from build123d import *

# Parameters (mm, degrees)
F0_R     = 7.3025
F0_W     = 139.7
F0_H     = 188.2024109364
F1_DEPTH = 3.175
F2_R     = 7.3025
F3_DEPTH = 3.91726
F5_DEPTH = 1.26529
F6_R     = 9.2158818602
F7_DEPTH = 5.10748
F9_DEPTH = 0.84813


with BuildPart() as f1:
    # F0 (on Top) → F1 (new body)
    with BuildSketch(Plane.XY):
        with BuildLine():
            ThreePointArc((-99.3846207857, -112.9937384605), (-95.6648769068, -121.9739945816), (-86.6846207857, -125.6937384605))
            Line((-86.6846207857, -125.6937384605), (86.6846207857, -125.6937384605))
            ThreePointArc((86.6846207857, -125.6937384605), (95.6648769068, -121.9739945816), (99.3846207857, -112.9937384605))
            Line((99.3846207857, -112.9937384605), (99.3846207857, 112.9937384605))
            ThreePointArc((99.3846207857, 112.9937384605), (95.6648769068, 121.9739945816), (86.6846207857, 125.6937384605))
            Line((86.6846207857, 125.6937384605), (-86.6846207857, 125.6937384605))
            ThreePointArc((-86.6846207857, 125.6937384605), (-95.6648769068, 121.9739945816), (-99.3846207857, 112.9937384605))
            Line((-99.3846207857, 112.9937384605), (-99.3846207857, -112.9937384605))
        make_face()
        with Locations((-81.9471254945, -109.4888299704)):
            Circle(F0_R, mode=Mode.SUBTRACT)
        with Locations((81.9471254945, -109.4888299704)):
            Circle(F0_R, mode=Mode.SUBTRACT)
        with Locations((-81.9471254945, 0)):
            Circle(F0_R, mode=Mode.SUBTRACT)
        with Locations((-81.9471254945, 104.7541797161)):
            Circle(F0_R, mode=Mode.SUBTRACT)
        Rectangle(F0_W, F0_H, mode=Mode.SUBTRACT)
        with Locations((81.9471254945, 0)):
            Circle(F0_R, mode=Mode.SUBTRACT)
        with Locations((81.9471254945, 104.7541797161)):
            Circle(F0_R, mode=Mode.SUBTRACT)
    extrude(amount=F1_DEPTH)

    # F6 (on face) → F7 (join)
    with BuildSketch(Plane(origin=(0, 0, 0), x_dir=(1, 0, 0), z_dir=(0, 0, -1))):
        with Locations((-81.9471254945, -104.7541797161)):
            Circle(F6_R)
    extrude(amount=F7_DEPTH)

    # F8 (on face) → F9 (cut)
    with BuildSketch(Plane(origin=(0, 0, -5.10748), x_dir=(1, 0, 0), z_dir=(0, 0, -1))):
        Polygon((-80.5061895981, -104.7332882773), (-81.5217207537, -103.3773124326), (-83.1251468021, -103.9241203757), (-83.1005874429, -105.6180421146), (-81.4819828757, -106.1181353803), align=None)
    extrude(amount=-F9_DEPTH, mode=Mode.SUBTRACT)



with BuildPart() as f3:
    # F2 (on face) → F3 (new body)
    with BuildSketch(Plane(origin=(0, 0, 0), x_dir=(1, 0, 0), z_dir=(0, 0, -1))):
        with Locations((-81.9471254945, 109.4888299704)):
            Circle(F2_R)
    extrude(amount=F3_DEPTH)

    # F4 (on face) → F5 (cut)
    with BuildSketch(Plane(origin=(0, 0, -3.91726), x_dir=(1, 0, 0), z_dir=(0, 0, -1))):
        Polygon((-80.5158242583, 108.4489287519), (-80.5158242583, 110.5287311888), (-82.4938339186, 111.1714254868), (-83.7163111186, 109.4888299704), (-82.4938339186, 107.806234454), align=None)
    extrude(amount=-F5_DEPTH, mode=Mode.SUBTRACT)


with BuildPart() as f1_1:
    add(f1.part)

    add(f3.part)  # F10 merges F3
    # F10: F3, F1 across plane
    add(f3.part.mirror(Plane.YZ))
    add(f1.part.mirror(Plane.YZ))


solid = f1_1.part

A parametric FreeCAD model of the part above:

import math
import FreeCAD as App
import Part
import Sketcher
Q = App.Units.Quantity


def add_polygon(sketch, points):
    """Adds a closed chain of lines whose ends are joined by coincident constraints."""
    first, n = sketch.GeometryCount, len(points)
    for a, b in zip(points, points[1:] + points[:1]):
        sketch.addGeometry(Part.LineSegment(App.Vector(*a, 0), App.Vector(*b, 0)), False)
    for i in range(n):
        sketch.addConstraint(Sketcher.Constraint("Coincident", first + i, 2, first + (i + 1) % n, 1))

doc = App.newDocument("Part")
body = doc.addObject("PartDesign::Body", "Body")

# Sketch on XY plane
sketch1 = body.newObject("Sketcher::SketchObject", "Sketch")
sketch1.AttachmentSupport = (doc.getObject("XY_Plane"), [""])
sketch1.MapMode = "FlatFace"
sketch1.addGeometry(Part.ArcOfCircle(Part.Circle(App.Vector(-86.684621, -112.993738, 0), App.Vector(0, 0, 1), 12.7), math.radians(180), math.radians(270)), False)  # 0
sketch1.addGeometry(Part.LineSegment(App.Vector(-86.684621, -125.693738, 0), App.Vector(86.684621, -125.693738, 0)), False)  # 1
sketch1.addGeometry(Part.ArcOfCircle(Part.Circle(App.Vector(86.684621, -112.993738, 0), App.Vector(0, 0, 1), 12.7), math.radians(-90), math.radians(0)), False)  # 2
sketch1.addGeometry(Part.LineSegment(App.Vector(99.384621, -112.993738, 0), App.Vector(99.384621, 112.993738, 0)), False)  # 3
sketch1.addGeometry(Part.ArcOfCircle(Part.Circle(App.Vector(86.684621, 112.993738, 0), App.Vector(0, 0, 1), 12.7), math.radians(0), math.radians(90)), False)  # 4
sketch1.addGeometry(Part.LineSegment(App.Vector(86.684621, 125.693738, 0), App.Vector(-86.684621, 125.693738, 0)), False)  # 5
sketch1.addGeometry(Part.ArcOfCircle(Part.Circle(App.Vector(-86.684621, 112.993738, 0), App.Vector(0, 0, 1), 12.7), math.radians(90), math.radians(180)), False)  # 6
sketch1.addGeometry(Part.LineSegment(App.Vector(-99.384621, 112.993738, 0), App.Vector(-99.384621, -112.993738, 0)), False)  # 7
sketch1.addGeometry(Part.Circle(App.Vector(-81.947125, -109.48883, 0), App.Vector(0, 0, 1), 7.3025), False)  # 8
sketch1.addGeometry(Part.Circle(App.Vector(81.947125, -109.48883, 0), App.Vector(0, 0, 1), 7.3025), False)  # 9
sketch1.addGeometry(Part.Circle(App.Vector(-81.947125, 0, 0), App.Vector(0, 0, 1), 7.3025), False)  # 10
sketch1.addGeometry(Part.Circle(App.Vector(-81.947125, 104.75418, 0), App.Vector(0, 0, 1), 7.3025), False)  # 11
add_polygon(sketch1, [(69.85, -94.101205), (-69.85, -94.101205), (-69.85, 94.101205), (69.85, 94.101205)])  # lines 12-15
sketch1.addGeometry(Part.Circle(App.Vector(81.947125, 0, 0), App.Vector(0, 0, 1), 7.3025), False)  # 16
sketch1.addGeometry(Part.Circle(App.Vector(81.947125, 104.75418, 0), App.Vector(0, 0, 1), 7.3025), False)  # 17
sketch1.addConstraint(Sketcher.Constraint("Tangent", 0, 2, 1, 1))
sketch1.addConstraint(Sketcher.Constraint("Tangent", 1, 2, 2, 1))
sketch1.addConstraint(Sketcher.Constraint("Tangent", 2, 2, 3, 1))
sketch1.addConstraint(Sketcher.Constraint("Tangent", 3, 2, 4, 1))
sketch1.addConstraint(Sketcher.Constraint("Tangent", 4, 2, 5, 1))
sketch1.addConstraint(Sketcher.Constraint("Tangent", 5, 2, 6, 1))
sketch1.addConstraint(Sketcher.Constraint("Tangent", 6, 2, 7, 1))
sketch1.addConstraint(Sketcher.Constraint("Tangent", 7, 2, 0, 1))
sketch1.addConstraint(Sketcher.Constraint("Horizontal", 1))
sketch1.addConstraint(Sketcher.Constraint("Vertical", 3))
sketch1.addConstraint(Sketcher.Constraint("Horizontal", 5))
sketch1.addConstraint(Sketcher.Constraint("Vertical", 7))
sketch1.addConstraint(Sketcher.Constraint("Horizontal", 12))
sketch1.addConstraint(Sketcher.Constraint("Vertical", 13))
sketch1.addConstraint(Sketcher.Constraint("Horizontal", 14))
sketch1.addConstraint(Sketcher.Constraint("Vertical", 15))
sketch1.addConstraint(Sketcher.Constraint("Equal", 0, 2))
sketch1.addConstraint(Sketcher.Constraint("Equal", 2, 4))
sketch1.addConstraint(Sketcher.Constraint("Equal", 4, 6))
sketch1.addConstraint(Sketcher.Constraint("Equal", 8, 9))
sketch1.addConstraint(Sketcher.Constraint("Equal", 9, 10))
sketch1.addConstraint(Sketcher.Constraint("Equal", 10, 11))
sketch1.addConstraint(Sketcher.Constraint("Equal", 11, 16))
sketch1.addConstraint(Sketcher.Constraint("Equal", 16, 17))
sketch1.addConstraint(Sketcher.Constraint("Symmetric", 0, 3, 4, 3, -1, 1))
sketch1.addConstraint(Sketcher.Constraint("Symmetric", 10, 3, 16, 3, -1, 1))
sketch1.addConstraint(Sketcher.Constraint("Symmetric", 12, 2, 14, 2, -1, 1))
sketch1.addConstraint(Sketcher.Constraint("Symmetric", 8, 3, 9, 3, -2))
sketch1.addConstraint(Sketcher.Constraint("Symmetric", 11, 3, 17, 3, -2))
sketch1.addConstraint(Sketcher.Constraint("PointOnObject", 10, 3, -1))
sketch1.addConstraint(Sketcher.Constraint("Vertical", 8, 3, 10, 3))
sketch1.addConstraint(Sketcher.Constraint("Vertical", 10, 3, 11, 3))
sketch1.addConstraint(Sketcher.Constraint("Radius", 0, Q("0.5 in")))
sketch1.addConstraint(Sketcher.Constraint("Diameter", 8, Q("0.575 in")))
sketch1.addConstraint(Sketcher.Constraint("DistanceX", 12, 2, 12, 1, Q("5.5 in")))
sketch1.addConstraint(Sketcher.Constraint("DistanceX", 1, 1, 1, 2, Q("173.369242 mm")))
sketch1.addConstraint(Sketcher.Constraint("DistanceY", 13, 1, 13, 2, Q("188.202411 mm")))
sketch1.addConstraint(Sketcher.Constraint("DistanceY", 3, 1, 3, 2, Q("225.987477 mm")))
sketch1.addConstraint(Sketcher.Constraint("DistanceY", 8, 3, -1, 1, Q("109.48883 mm")))
sketch1.addConstraint(Sketcher.Constraint("DistanceY", -1, 1, 11, 3, Q("104.75418 mm")))
sketch1.addConstraint(Sketcher.Constraint("DistanceX", 8, 3, 9, 3, Q("163.894251 mm")))
pad1 = body.newObject("PartDesign::Pad", "Pad")
pad1.Profile = sketch1
pad1.Length = Q("0.125 in")

# Sketch on XY plane
sketch2 = body.newObject("Sketcher::SketchObject", "Sketch001")
sketch2.AttachmentSupport = (doc.getObject("XY_Plane"), [""])
sketch2.MapMode = "FlatFace"
sketch2.addGeometry(Part.Circle(App.Vector(-81.947125, 104.75418, 0), App.Vector(0, 0, 1), 9.215882), False)
sketch2.addConstraint(Sketcher.Constraint("Diameter", 0, Q("18.431764 mm")))
sketch2.addConstraint(Sketcher.Constraint("DistanceY", -1, 1, 0, 3, Q("104.75418 mm")))
sketch2.addConstraint(Sketcher.Constraint("DistanceX", 0, 3, -1, 1, Q("81.947125 mm")))
pad2 = body.newObject("PartDesign::Pad", "Pad001")
pad2.Profile = sketch2
pad2.Length = 5.10748
pad2.Reversed = True

# Sketch on XY plane
sketch3 = body.newObject("Sketcher::SketchObject", "Sketch002")
sketch3.AttachmentSupport = (doc.getObject("XY_Plane"), [""])
sketch3.MapMode = "FlatFace"
sketch3.AttachmentOffset = App.Placement(App.Vector(0, 0, -5.10748), App.Rotation())
add_polygon(sketch3, [(-80.50619, 104.733288), (-81.521721, 103.377312), (-83.125147, 103.92412), (-83.100587, 105.618042), (-81.481983, 106.118135)])  # lines 0-4
sketch3.addConstraint(Sketcher.Constraint("Equal", 0, 1))
sketch3.addConstraint(Sketcher.Constraint("Equal", 1, 2))
sketch3.addConstraint(Sketcher.Constraint("Equal", 2, 3))
sketch3.addConstraint(Sketcher.Constraint("Equal", 3, 4))
sketch3.addConstraint(Sketcher.Constraint("Distance", 0, Q("1.6941 mm")))
sketch3.addConstraint(Sketcher.Constraint("DistanceX", 0, 2, -1, 1, Q("81.521721 mm")))
sketch3.addConstraint(Sketcher.Constraint("DistanceY", -1, 1, 1, 2, Q("103.92412 mm")))
sketch3.addConstraint(Sketcher.Constraint("DistanceX", 4, 2, -1, 1, Q("80.50619 mm")))
sketch3.addConstraint(Sketcher.Constraint("DistanceY", -1, 1, 4, 2, Q("104.733288 mm")))
sketch3.addConstraint(Sketcher.Constraint("DistanceX", 1, 2, 2, 2, Q("0.024559 mm")))
pocket1 = body.newObject("PartDesign::Pocket", "Pocket")
pocket1.Profile = sketch3
pocket1.Length = 0.84813
pocket1.Reversed = True
body2 = doc.addObject("PartDesign::Body", "Body001")

# Sketch on XY plane
sketch4 = body2.newObject("Sketcher::SketchObject", "Sketch003")
sketch4.AttachmentSupport = (doc.getObject("XY_Plane001"), [""])
sketch4.MapMode = "FlatFace"
sketch4.addGeometry(Part.Circle(App.Vector(-81.947125, -109.48883, 0), App.Vector(0, 0, 1), 7.3025), False)
sketch4.addConstraint(Sketcher.Constraint("Diameter", 0, Q("0.575 in")))
sketch4.addConstraint(Sketcher.Constraint("DistanceY", 0, 3, -1, 1, Q("109.48883 mm")))
sketch4.addConstraint(Sketcher.Constraint("DistanceX", 0, 3, -1, 1, Q("81.947125 mm")))
pad3 = body2.newObject("PartDesign::Pad", "Pad002")
pad3.Profile = sketch4
pad3.Length = 3.91726
pad3.Reversed = True

# Sketch on XY plane
sketch5 = body2.newObject("Sketcher::SketchObject", "Sketch004")
sketch5.AttachmentSupport = (doc.getObject("XY_Plane001"), [""])
sketch5.MapMode = "FlatFace"
sketch5.AttachmentOffset = App.Placement(App.Vector(0, 0, -3.91726), App.Rotation())
add_polygon(sketch5, [(-80.515824, -108.448929), (-80.515824, -110.528731), (-82.493834, -111.171425), (-83.716311, -109.48883), (-82.493834, -107.806234)])  # lines 0-4
sketch5.addConstraint(Sketcher.Constraint("Vertical", 0))
sketch5.addConstraint(Sketcher.Constraint("Vertical", 1, 2, 3, 2))
sketch5.addConstraint(Sketcher.Constraint("Equal", 1, 2))
sketch5.addConstraint(Sketcher.Constraint("Equal", 2, 3))
sketch5.addConstraint(Sketcher.Constraint("Equal", 3, 4))
sketch5.addConstraint(Sketcher.Constraint("Angle", 1, Q("-162 deg")))
sketch5.addConstraint(Sketcher.Constraint("Angle", 2, Q("126 deg")))
sketch5.addConstraint(Sketcher.Constraint("DistanceY", 0, 2, 2, 2, Q("1.039901 mm")))
sketch5.addConstraint(Sketcher.Constraint("DistanceY", 0, 2, -1, 1, Q("110.528731 mm")))
sketch5.addConstraint(Sketcher.Constraint("DistanceX", 2, 2, -1, 1, Q("83.716311 mm")))
pocket2 = body2.newObject("PartDesign::Pocket", "Pocket001")
pocket2.Profile = sketch5
pocket2.Length = 1.26529
pocket2.Reversed = True
body3 = doc.addObject("PartDesign::Body", "Body002")
body3.AllowCompound = True
doc.recompute()

body3.BaseFeature = body
doc.recompute()

body4 = doc.addObject("PartDesign::Body", "Body003")
body4.BaseFeature = body2
boolean = body3.newObject("PartDesign::Boolean", "Boolean")
boolean.Type = "Fuse"
boolean.addObjects([body4])
doc.recompute()

mirroring = doc.addObject("Part::Mirroring", "Mirroring")
mirroring.Source = body2
mirroring.Base = App.Vector(0, 0, 0)
mirroring.Normal = App.Vector(1, 0, 0)
body5 = doc.addObject("PartDesign::Body", "Body004")
body5.BaseFeature = mirroring
boolean2 = body3.newObject("PartDesign::Boolean", "Boolean001")
boolean2.Type = "Fuse"
boolean2.addObjects([body5])
doc.recompute()

mirroring2 = doc.addObject("Part::Mirroring", "Mirroring001")
mirroring2.Source = body
mirroring2.Base = App.Vector(0, 0, 0)
mirroring2.Normal = App.Vector(1, 0, 0)
body6 = doc.addObject("PartDesign::Body", "Body005")
body6.BaseFeature = mirroring2
boolean3 = body3.newObject("PartDesign::Boolean", "Boolean002")
boolean3.Type = "Fuse"
boolean3.addObjects([body6])
doc.recompute()
mirroring.Visibility = False
mirroring2.Visibility = False

doc.recompute()
